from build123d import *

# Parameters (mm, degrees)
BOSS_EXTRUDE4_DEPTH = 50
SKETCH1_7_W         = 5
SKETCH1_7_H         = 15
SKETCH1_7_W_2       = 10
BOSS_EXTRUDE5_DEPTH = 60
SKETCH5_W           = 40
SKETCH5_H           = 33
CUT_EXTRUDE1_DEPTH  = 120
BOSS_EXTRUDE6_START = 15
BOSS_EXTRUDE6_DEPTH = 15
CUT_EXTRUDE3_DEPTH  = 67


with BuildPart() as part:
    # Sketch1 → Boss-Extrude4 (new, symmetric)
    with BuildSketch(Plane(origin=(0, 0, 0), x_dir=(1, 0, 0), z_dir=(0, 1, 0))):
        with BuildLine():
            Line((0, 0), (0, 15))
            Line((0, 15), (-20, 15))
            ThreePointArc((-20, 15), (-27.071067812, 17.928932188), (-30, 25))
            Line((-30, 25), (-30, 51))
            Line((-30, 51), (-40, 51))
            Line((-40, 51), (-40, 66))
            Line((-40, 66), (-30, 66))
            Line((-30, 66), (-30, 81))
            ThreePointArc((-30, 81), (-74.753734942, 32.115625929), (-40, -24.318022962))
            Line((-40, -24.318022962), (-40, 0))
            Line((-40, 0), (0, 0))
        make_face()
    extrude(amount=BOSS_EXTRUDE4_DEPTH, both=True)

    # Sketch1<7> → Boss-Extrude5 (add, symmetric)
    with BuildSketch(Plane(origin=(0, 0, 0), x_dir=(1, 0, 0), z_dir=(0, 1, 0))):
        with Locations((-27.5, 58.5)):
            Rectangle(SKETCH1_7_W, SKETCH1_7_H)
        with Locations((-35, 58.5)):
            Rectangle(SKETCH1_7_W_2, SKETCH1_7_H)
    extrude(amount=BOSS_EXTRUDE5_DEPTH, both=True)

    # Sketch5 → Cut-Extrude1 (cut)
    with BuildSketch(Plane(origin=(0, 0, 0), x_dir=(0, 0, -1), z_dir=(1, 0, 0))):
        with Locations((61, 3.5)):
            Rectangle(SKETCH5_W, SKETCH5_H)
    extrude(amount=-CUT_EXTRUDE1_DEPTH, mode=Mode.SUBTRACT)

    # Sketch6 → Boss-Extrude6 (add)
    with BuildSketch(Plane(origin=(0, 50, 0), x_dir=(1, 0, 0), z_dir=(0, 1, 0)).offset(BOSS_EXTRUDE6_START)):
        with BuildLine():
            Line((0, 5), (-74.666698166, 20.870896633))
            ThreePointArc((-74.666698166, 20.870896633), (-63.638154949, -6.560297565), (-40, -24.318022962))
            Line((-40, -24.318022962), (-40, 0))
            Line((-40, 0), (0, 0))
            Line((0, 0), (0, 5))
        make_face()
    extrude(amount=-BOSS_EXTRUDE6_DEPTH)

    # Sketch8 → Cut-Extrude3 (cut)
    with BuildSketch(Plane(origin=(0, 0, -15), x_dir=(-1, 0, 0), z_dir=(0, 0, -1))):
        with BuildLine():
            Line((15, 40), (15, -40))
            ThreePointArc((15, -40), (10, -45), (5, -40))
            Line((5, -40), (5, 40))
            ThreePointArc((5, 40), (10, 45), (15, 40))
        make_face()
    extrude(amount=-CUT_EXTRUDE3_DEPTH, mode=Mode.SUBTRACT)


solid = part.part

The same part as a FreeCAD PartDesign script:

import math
import FreeCAD as App
import Part
import Sketcher
Q = App.Units.Quantity


def add_polygon(sketch, points):
    """Adds a closed chain of lines whose ends are joined by coincident constraints."""
    first, n = sketch.GeometryCount, len(points)
    for a, b in zip(points, points[1:] + points[:1]):
        sketch.addGeometry(Part.LineSegment(App.Vector(*a, 0), App.Vector(*b, 0)), False)
    for i in range(n):
        sketch.addConstraint(Sketcher.Constraint("Coincident", first + i, 2, first + (i + 1) % n, 1))

doc = App.newDocument("Part")
body = doc.addObject("PartDesign::Body", "Body")

# Sketch on XZ plane
sketch1 = doc.addObject("Sketcher::SketchObject", "Sketch")
body.addObject(sketch1)
sketch1.AttachmentSupport = (doc.XZ_Plane, [""])
sketch1.MapMode = "FlatFace"
sketch1.addGeometry(Part.LineSegment(App.Vector(0, 0, 0), App.Vector(0, -15, 0)), False)
sketch1.addGeometry(Part.LineSegment(App.Vector(0, -15, 0), App.Vector(-20, -15, 0)), False)
sketch1.addGeometry(Part.ArcOfCircle(Part.Circle(App.Vector(-20, -25, 0), App.Vector(0, 0, 1), 10), math.radians(90), math.radians(180)), False)
sketch1.addGeometry(Part.LineSegment(App.Vector(-30, -25, 0), App.Vector(-30, -51, 0)), False)
sketch1.addGeometry(Part.LineSegment(App.Vector(-30, -51, 0), App.Vector(-40, -51, 0)), False)
sketch1.addGeometry(Part.LineSegment(App.Vector(-40, -51, 0), App.Vector(-40, -66, 0)), False)
sketch1.addGeometry(Part.LineSegment(App.Vector(-40, -66, 0), App.Vector(-30, -66, 0)), False)
sketch1.addGeometry(Part.LineSegment(App.Vector(-30, -66, 0), App.Vector(-30, -81, 0)), False)
sketch1.addGeometry(Part.ArcOfCircle(Part.Circle(App.Vector(-20, -27, 0), App.Vector(0, 0, 1), 55), math.radians(111), math.radians(260)), False)
sketch1.addGeometry(Part.LineSegment(App.Vector(-40, 24, 0), App.Vector(-40, 0, 0)), False)
sketch1.addGeometry(Part.LineSegment(App.Vector(-40, 0, 0), App.Vector(0, 0, 0)), False)
sketch1.addConstraint(Sketcher.Constraint("Coincident", 0, 2, 1, 1))
sketch1.addConstraint(Sketcher.Constraint("Tangent", 1, 2, 2, 1))
sketch1.addConstraint(Sketcher.Constraint("Tangent", 2, 2, 3, 1))
sketch1.addConstraint(Sketcher.Constraint("Coincident", 3, 2, 4, 1))
sketch1.addConstraint(Sketcher.Constraint("Coincident", 4, 2, 5, 1))
sketch1.addConstraint(Sketcher.Constraint("Coincident", 5, 2, 6, 1))
sketch1.addConstraint(Sketcher.Constraint("Coincident", 6, 2, 7, 1))
sketch1.addConstraint(Sketcher.Constraint("Coincident", 7, 2, 8, 2))
sketch1.addConstraint(Sketcher.Constraint("Coincident", 8, 1, 9, 1))
sketch1.addConstraint(Sketcher.Constraint("Coincident", 9, 2, 10, 1))
sketch1.addConstraint(Sketcher.Constraint("Coincident", 10, 2, 0, 1))
sketch1.addConstraint(Sketcher.Constraint("Vertical", 0))
sketch1.addConstraint(Sketcher.Constraint("Horizontal", 1))
sketch1.addConstraint(Sketcher.Constraint("Vertical", 3))
sketch1.addConstraint(Sketcher.Constraint("Horizontal", 4))
sketch1.addConstraint(Sketcher.Constraint("Vertical", 5))
sketch1.addConstraint(Sketcher.Constraint("Horizontal", 6))
sketch1.addConstraint(Sketcher.Constraint("Vertical", 7))
sketch1.addConstraint(Sketcher.Constraint("Vertical", 9))
sketch1.addConstraint(Sketcher.Constraint("Horizontal", 10))
sketch1.addConstraint(Sketcher.Constraint("Coincident", 10, 2, -1, 1))
sketch1.addConstraint(Sketcher.Constraint("Vertical", 2, 3, 8, 3))
sketch1.addConstraint(Sketcher.Constraint("Vertical", 3, 2, 6, 2))
sketch1.addConstraint(Sketcher.Constraint("Vertical", 5, 2, 8, 1))
sketch1.addConstraint(Sketcher.Constraint("Equal", 0, 5))
sketch1.addConstraint(Sketcher.Constraint("Equal", 5, 7))
sketch1.addConstraint(Sketcher.Constraint("Radius", 2, Q("10 mm")))
sketch1.addConstraint(Sketcher.Constraint("Radius", 8, Q("55 mm")))
sketch1.addConstraint(Sketcher.Constraint("DistanceX", 1, 2, 1, 1, Q("20 mm")))
sketch1.addConstraint(Sketcher.Constraint("DistanceX", 4, 2, 4, 1, Q("10 mm")))
sketch1.addConstraint(Sketcher.Constraint("DistanceY", 0, 2, 0, 1, Q("15 mm")))
sketch1.addConstraint(Sketcher.Constraint("DistanceY", 3, 2, 3, 1, Q("26 mm")))
pad1 = doc.addObject("PartDesign::Pad", "Pad")
body.addObject(pad1)
pad1.Profile = sketch1
pad1.Length = 100
pad1.Midplane = True

# Sketch on XZ plane
sketch2 = doc.addObject("Sketcher::SketchObject", "Sketch001")
body.addObject(sketch2)
sketch2.AttachmentSupport = (doc.XZ_Plane, [""])
sketch2.MapMode = "FlatFace"
add_polygon(sketch2, [(-25, -51), (-25, -66), (-40, -66), (-40, -51)])  # lines 0-3
sketch2.addConstraint(Sketcher.Constraint("Vertical", 0))
sketch2.addConstraint(Sketcher.Constraint("Horizontal", 1))
sketch2.addConstraint(Sketcher.Constraint("Vertical", 2))
sketch2.addConstraint(Sketcher.Constraint("Horizontal", 3))
sketch2.addConstraint(Sketcher.Constraint("Equal", 3, 0))
sketch2.addConstraint(Sketcher.Constraint("DistanceX", 1, 2, 1, 1, Q("15 mm")))
sketch2.addConstraint(Sketcher.Constraint("DistanceX", 0, 2, -1, 1, Q("25 mm")))
sketch2.addConstraint(Sketcher.Constraint("DistanceY", 0, 2, -1, 1, Q("66 mm")))
pad2 = doc.addObject("PartDesign::Pad", "Pad001")
body.addObject(pad2)
pad2.Profile = sketch2
pad2.Length = 120
pad2.Midplane = True

# Sketch on YZ plane
sketch3 = doc.addObject("Sketcher::SketchObject", "Sketch002")
body.addObject(sketch3)
sketch3.AttachmentSupport = (doc.YZ_Plane, [""])
sketch3.MapMode = "FlatFace"
add_polygon(sketch3, [(20, -41), (-13, -41), (-13, -81), (20, -81)])  # lines 0-3
sketch3.addConstraint(Sketcher.Constraint("Horizontal", 0))
sketch3.addConstraint(Sketcher.Constraint("Vertical", 1))
sketch3.addConstraint(Sketcher.Constraint("Horizontal", 2))
sketch3.addConstraint(Sketcher.Constraint("Vertical", 3))
sketch3.addConstraint(Sketcher.Constraint("DistanceX", 0, 2, 0, 1, Q("33 mm")))
sketch3.addConstraint(Sketcher.Constraint("DistanceY", 1, 2, 1, 1, Q("40 mm")))
sketch3.addConstraint(Sketcher.Constraint("DistanceX", 0, 2, -1, 1, Q("13 mm")))
sketch3.addConstraint(Sketcher.Constraint("DistanceY", 0, 2, -1, 1, Q("41 mm")))
pocket1 = doc.addObject("PartDesign::Pocket", "Pocket")
body.addObject(pocket1)
pocket1.Profile = sketch3
pocket1.Length = 120

# Sketch on XZ plane
sketch4 = doc.addObject("Sketcher::SketchObject", "Sketch003")
body.addObject(sketch4)
sketch4.AttachmentSupport = (doc.XZ_Plane, [""])
sketch4.MapMode = "FlatFace"
sketch4.AttachmentOffset = App.Placement(App.Vector(0, 0, -65), App.Rotation())
sketch4.addGeometry(Part.LineSegment(App.Vector(0, -5, 0), App.Vector(-75, -21, 0)), False)
sketch4.addGeometry(Part.ArcOfCircle(Part.Circle(App.Vector(-20, -27, 0), App.Vector(0, 0, 1), 55), math.radians(111), math.radians(174)), False)
sketch4.addGeometry(Part.LineSegment(App.Vector(-40, 24, 0), App.Vector(-40, 0, 0)), False)
sketch4.addGeometry(Part.LineSegment(App.Vector(-40, 0, 0), App.Vector(0, 0, 0)), False)
sketch4.addGeometry(Part.LineSegment(App.Vector(0, 0, 0), App.Vector(0, -5, 0)), False)
sketch4.addConstraint(Sketcher.Constraint("Coincident", 0, 2, 1, 2))
sketch4.addConstraint(Sketcher.Constraint("Coincident", 1, 1, 2, 1))
sketch4.addConstraint(Sketcher.Constraint("Coincident", 2, 2, 3, 1))
sketch4.addConstraint(Sketcher.Constraint("Coincident", 3, 2, 4, 1))
sketch4.addConstraint(Sketcher.Constraint("Coincident", 4, 2, 0, 1))
sketch4.addConstraint(Sketcher.Constraint("Vertical", 2))
sketch4.addConstraint(Sketcher.Constraint("Horizontal", 3))
sketch4.addConstraint(Sketcher.Constraint("Vertical", 4))
sketch4.addConstraint(Sketcher.Constraint("Coincident", 3, 2, -1, 1))
sketch4.addConstraint(Sketcher.Constraint("Radius", 1, Q("55 mm")))
sketch4.addConstraint(Sketcher.Constraint("DistanceX", 3, 1, 3, 2, Q("40 mm")))
sketch4.addConstraint(Sketcher.Constraint("DistanceY", 4, 2, 4, 1, Q("5 mm")))
sketch4.addConstraint(Sketcher.Constraint("Angle", 0, Q("-168 deg")))
sketch4.addConstraint(Sketcher.Constraint("DistanceX", 1, 3, -1, 1, Q("20 mm")))
sketch4.addConstraint(Sketcher.Constraint("DistanceX", 0, 2, -1, 1, Q("74.666698 mm")))
pad3 = doc.addObject("PartDesign::Pad", "Pad002")
body.addObject(pad3)
pad3.Profile = sketch4
pad3.Length = 15

# Sketch on XY plane
sketch5 = doc.addObject("Sketcher::SketchObject", "Sketch004")
body.addObject(sketch5)
sketch5.AttachmentSupport = (doc.XY_Plane, [""])
sketch5.MapMode = "FlatFace"
sketch5.AttachmentOffset = App.Placement(App.Vector(0, 0, -15), App.Rotation())
sketch5.addGeometry(Part.LineSegment(App.Vector(-15, -40, 0), App.Vector(-15, 40, 0)), False)
sketch5.addGeometry(Part.ArcOfCircle(Part.Circle(App.Vector(-10, 40, 0), App.Vector(0, 0, 1), 5), math.radians(0), math.radians(180)), False)
sketch5.addGeometry(Part.LineSegment(App.Vector(-5, 40, 0), App.Vector(-5, -40, 0)), False)
sketch5.addGeometry(Part.ArcOfCircle(Part.Circle(App.Vector(-10, -40, 0), App.Vector(0, 0, 1), 5), math.radians(180), math.radians(360)), False)
sketch5.addConstraint(Sketcher.Constraint("Tangent", 0, 2, 1, 2))
sketch5.addConstraint(Sketcher.Constraint("Tangent", 1, 1, 2, 1))
sketch5.addConstraint(Sketcher.Constraint("Tangent", 2, 2, 3, 2))
sketch5.addConstraint(Sketcher.Constraint("Tangent", 3, 1, 0, 1))
sketch5.addConstraint(Sketcher.Constraint("Vertical", 0))
sketch5.addConstraint(Sketcher.Constraint("Vertical", 2))
sketch5.addConstraint(Sketcher.Constraint("Radius", 1, Q("5 mm")))
sketch5.addConstraint(Sketcher.Constraint("DistanceY", 0, 1, 0, 2, Q("80 mm")))
sketch5.addConstraint(Sketcher.Constraint("DistanceX", 1, 3, -1, 1, Q("10 mm")))
sketch5.addConstraint(Sketcher.Constraint("DistanceY", -1, 1, 1, 3, Q("40 mm")))
pocket2 = doc.addObject("PartDesign::Pocket", "Pocket001")
body.addObject(pocket2)
pocket2.Profile = sketch5
pocket2.Length = 67
pocket2.Reversed = True

doc.recompute()
